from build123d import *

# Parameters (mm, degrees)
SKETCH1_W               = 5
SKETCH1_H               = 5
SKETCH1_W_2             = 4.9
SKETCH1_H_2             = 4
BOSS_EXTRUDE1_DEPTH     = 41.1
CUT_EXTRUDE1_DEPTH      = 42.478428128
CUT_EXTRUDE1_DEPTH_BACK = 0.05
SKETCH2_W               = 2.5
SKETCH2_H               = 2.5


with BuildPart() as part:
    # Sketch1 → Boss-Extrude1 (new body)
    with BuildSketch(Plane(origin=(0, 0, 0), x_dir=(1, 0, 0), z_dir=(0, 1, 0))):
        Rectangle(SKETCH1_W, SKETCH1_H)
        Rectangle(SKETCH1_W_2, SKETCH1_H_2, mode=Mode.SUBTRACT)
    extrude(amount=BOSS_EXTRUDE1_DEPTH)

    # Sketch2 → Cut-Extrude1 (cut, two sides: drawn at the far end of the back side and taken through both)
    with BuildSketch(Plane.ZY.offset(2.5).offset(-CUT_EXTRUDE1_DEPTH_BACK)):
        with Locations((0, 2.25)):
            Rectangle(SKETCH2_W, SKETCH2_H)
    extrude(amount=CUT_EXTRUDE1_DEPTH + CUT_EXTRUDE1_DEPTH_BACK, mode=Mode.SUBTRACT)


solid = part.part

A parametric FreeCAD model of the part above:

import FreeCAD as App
import Part
import Sketcher
from FreeCAD import Vector


def add_polygon(sketch, points):
    """Adds a closed chain of lines whose ends are joined by coincident constraints."""
    first, n = sketch.GeometryCount, len(points)
    for a, b in zip(points, points[1:] + points[:1]):
        sketch.addGeometry(Part.LineSegment(App.Vector(*a, 0), App.Vector(*b, 0)), False)
    for i in range(n):
        sketch.addConstraint(Sketcher.Constraint("Coincident", first + i, 2, first + (i + 1) % n, 1))

doc = App.newDocument("Part")
params = doc.addObject("Spreadsheet::Sheet", "Params")
for row, (alias, value) in enumerate([
    ("sketch1_width", "5 mm"),
    ("sketch1_height", "4 mm"),
    ("sketch1_width2", "4.9 mm"),
    ("pad1_length", "41.1 mm"),
    ("sketch2_width", "2.5 mm"),
    ("pocket1_length", "42.478428 mm"),
    ("pocket1_length2", "0.05 mm"),
], start=1):
    params.set(f"A{row}", alias)
    params.set(f"B{row}", "=" + value)
    params.setAlias(f"B{row}", alias)

body = doc.addObject("PartDesign::Body", "Body")

# Sketch on XZ plane
sketch1 = body.newObject("Sketcher::SketchObject", "Sketch")
sketch1.AttachmentSupport = (doc.getObject("XZ_Plane"), [""])
sketch1.MapMode = "FlatFace"
add_polygon(sketch1, [(-2.5, -2.5), (-2.5, 2.5), (2.5, 2.5), (2.5, -2.5)])  # lines 0-3
add_polygon(sketch1, [(2.5, 2), (-2.5, 2), (-2.5, -2), (2.5, -2)])  # lines 4-7
sketch1.addConstraint(Sketcher.Constraint("Vertical", 0))
sketch1.addConstraint(Sketcher.Constraint("Horizontal", 1))
sketch1.addConstraint(Sketcher.Constraint("Vertical", 2))
sketch1.addConstraint(Sketcher.Constraint("Horizontal", 3))
sketch1.addConstraint(Sketcher.Constraint("Horizontal", 4))
sketch1.addConstraint(Sketcher.Constraint("Vertical", 5))
sketch1.addConstraint(Sketcher.Constraint("Horizontal", 6))
sketch1.addConstraint(Sketcher.Constraint("Vertical", 7))
sketch1.addConstraint(Sketcher.Constraint("Symmetric", 0, 2, 2, 2, -1, 1))
sketch1.addConstraint(Sketcher.Constraint("Symmetric", 4, 2, 6, 2, -1, 1))
sketch1.addConstraint(Sketcher.Constraint("Equal", 3, 0))
sketch1.addConstraint(Sketcher.Constraint("DistanceX", 1, 1, 1, 2, 5.0))
sketch1.addConstraint(Sketcher.Constraint("DistanceY", 5, 2, 5, 1, 4.0))
sketch1.addConstraint(Sketcher.Constraint("DistanceX", 4, 2, 4, 1, 4.9))
sketch1.setExpression("Constraints[19]", "Params.sketch1_width")
sketch1.setExpression("Constraints[20]", "Params.sketch1_height")
sketch1.setExpression("Constraints[21]", "Params.sketch1_width2")
pad1 = body.newObject("PartDesign::Pad", "Pad")
pad1.Profile = sketch1
pad1.setExpression("Length", "Params.pad1_length")
pad1.Reversed = True

# Sketch on YZ plane
sketch2 = body.newObject("Sketcher::SketchObject", "Sketch001")
sketch2.AttachmentSupport = (doc.getObject("YZ_Plane"), [""])
sketch2.MapMode = "FlatFace"
sketch2.AttachmentOffset = App.Placement(Vector(0, 0, -2.5), App.Rotation())
add_polygon(sketch2, [(3.5, -1.2), (1, -1.2), (1, 1.2), (3.5, 1.2)])  # lines 0-3
sketch2.addConstraint(Sketcher.Constraint("Horizontal", 0))
sketch2.addConstraint(Sketcher.Constraint("Vertical", 1))
sketch2.addConstraint(Sketcher.Constraint("Horizontal", 2))
sketch2.addConstraint(Sketcher.Constraint("Vertical", 3))
sketch2.addConstraint(Sketcher.Constraint("Equal", 2, 1))
sketch2.addConstraint(Sketcher.Constraint("DistanceX", 0, 2, 0, 1, 2.5))
sketch2.addConstraint(Sketcher.Constraint("DistanceX", -1, 1, 0, 2, 1.0))
sketch2.addConstraint(Sketcher.Constraint("DistanceY", 0, 2, -1, 1, 1.25))
sketch2.setExpression("Constraints[9]", "Params.sketch2_width")
pocket1 = body.newObject("PartDesign::Pocket", "Pocket")
pocket1.Profile = sketch2
pocket1.Type = "TwoLengths"
pocket1.setExpression("Length", "Params.pocket1_length")
pocket1.setExpression("Length2", "Params.pocket1_length2")

doc.recompute()
